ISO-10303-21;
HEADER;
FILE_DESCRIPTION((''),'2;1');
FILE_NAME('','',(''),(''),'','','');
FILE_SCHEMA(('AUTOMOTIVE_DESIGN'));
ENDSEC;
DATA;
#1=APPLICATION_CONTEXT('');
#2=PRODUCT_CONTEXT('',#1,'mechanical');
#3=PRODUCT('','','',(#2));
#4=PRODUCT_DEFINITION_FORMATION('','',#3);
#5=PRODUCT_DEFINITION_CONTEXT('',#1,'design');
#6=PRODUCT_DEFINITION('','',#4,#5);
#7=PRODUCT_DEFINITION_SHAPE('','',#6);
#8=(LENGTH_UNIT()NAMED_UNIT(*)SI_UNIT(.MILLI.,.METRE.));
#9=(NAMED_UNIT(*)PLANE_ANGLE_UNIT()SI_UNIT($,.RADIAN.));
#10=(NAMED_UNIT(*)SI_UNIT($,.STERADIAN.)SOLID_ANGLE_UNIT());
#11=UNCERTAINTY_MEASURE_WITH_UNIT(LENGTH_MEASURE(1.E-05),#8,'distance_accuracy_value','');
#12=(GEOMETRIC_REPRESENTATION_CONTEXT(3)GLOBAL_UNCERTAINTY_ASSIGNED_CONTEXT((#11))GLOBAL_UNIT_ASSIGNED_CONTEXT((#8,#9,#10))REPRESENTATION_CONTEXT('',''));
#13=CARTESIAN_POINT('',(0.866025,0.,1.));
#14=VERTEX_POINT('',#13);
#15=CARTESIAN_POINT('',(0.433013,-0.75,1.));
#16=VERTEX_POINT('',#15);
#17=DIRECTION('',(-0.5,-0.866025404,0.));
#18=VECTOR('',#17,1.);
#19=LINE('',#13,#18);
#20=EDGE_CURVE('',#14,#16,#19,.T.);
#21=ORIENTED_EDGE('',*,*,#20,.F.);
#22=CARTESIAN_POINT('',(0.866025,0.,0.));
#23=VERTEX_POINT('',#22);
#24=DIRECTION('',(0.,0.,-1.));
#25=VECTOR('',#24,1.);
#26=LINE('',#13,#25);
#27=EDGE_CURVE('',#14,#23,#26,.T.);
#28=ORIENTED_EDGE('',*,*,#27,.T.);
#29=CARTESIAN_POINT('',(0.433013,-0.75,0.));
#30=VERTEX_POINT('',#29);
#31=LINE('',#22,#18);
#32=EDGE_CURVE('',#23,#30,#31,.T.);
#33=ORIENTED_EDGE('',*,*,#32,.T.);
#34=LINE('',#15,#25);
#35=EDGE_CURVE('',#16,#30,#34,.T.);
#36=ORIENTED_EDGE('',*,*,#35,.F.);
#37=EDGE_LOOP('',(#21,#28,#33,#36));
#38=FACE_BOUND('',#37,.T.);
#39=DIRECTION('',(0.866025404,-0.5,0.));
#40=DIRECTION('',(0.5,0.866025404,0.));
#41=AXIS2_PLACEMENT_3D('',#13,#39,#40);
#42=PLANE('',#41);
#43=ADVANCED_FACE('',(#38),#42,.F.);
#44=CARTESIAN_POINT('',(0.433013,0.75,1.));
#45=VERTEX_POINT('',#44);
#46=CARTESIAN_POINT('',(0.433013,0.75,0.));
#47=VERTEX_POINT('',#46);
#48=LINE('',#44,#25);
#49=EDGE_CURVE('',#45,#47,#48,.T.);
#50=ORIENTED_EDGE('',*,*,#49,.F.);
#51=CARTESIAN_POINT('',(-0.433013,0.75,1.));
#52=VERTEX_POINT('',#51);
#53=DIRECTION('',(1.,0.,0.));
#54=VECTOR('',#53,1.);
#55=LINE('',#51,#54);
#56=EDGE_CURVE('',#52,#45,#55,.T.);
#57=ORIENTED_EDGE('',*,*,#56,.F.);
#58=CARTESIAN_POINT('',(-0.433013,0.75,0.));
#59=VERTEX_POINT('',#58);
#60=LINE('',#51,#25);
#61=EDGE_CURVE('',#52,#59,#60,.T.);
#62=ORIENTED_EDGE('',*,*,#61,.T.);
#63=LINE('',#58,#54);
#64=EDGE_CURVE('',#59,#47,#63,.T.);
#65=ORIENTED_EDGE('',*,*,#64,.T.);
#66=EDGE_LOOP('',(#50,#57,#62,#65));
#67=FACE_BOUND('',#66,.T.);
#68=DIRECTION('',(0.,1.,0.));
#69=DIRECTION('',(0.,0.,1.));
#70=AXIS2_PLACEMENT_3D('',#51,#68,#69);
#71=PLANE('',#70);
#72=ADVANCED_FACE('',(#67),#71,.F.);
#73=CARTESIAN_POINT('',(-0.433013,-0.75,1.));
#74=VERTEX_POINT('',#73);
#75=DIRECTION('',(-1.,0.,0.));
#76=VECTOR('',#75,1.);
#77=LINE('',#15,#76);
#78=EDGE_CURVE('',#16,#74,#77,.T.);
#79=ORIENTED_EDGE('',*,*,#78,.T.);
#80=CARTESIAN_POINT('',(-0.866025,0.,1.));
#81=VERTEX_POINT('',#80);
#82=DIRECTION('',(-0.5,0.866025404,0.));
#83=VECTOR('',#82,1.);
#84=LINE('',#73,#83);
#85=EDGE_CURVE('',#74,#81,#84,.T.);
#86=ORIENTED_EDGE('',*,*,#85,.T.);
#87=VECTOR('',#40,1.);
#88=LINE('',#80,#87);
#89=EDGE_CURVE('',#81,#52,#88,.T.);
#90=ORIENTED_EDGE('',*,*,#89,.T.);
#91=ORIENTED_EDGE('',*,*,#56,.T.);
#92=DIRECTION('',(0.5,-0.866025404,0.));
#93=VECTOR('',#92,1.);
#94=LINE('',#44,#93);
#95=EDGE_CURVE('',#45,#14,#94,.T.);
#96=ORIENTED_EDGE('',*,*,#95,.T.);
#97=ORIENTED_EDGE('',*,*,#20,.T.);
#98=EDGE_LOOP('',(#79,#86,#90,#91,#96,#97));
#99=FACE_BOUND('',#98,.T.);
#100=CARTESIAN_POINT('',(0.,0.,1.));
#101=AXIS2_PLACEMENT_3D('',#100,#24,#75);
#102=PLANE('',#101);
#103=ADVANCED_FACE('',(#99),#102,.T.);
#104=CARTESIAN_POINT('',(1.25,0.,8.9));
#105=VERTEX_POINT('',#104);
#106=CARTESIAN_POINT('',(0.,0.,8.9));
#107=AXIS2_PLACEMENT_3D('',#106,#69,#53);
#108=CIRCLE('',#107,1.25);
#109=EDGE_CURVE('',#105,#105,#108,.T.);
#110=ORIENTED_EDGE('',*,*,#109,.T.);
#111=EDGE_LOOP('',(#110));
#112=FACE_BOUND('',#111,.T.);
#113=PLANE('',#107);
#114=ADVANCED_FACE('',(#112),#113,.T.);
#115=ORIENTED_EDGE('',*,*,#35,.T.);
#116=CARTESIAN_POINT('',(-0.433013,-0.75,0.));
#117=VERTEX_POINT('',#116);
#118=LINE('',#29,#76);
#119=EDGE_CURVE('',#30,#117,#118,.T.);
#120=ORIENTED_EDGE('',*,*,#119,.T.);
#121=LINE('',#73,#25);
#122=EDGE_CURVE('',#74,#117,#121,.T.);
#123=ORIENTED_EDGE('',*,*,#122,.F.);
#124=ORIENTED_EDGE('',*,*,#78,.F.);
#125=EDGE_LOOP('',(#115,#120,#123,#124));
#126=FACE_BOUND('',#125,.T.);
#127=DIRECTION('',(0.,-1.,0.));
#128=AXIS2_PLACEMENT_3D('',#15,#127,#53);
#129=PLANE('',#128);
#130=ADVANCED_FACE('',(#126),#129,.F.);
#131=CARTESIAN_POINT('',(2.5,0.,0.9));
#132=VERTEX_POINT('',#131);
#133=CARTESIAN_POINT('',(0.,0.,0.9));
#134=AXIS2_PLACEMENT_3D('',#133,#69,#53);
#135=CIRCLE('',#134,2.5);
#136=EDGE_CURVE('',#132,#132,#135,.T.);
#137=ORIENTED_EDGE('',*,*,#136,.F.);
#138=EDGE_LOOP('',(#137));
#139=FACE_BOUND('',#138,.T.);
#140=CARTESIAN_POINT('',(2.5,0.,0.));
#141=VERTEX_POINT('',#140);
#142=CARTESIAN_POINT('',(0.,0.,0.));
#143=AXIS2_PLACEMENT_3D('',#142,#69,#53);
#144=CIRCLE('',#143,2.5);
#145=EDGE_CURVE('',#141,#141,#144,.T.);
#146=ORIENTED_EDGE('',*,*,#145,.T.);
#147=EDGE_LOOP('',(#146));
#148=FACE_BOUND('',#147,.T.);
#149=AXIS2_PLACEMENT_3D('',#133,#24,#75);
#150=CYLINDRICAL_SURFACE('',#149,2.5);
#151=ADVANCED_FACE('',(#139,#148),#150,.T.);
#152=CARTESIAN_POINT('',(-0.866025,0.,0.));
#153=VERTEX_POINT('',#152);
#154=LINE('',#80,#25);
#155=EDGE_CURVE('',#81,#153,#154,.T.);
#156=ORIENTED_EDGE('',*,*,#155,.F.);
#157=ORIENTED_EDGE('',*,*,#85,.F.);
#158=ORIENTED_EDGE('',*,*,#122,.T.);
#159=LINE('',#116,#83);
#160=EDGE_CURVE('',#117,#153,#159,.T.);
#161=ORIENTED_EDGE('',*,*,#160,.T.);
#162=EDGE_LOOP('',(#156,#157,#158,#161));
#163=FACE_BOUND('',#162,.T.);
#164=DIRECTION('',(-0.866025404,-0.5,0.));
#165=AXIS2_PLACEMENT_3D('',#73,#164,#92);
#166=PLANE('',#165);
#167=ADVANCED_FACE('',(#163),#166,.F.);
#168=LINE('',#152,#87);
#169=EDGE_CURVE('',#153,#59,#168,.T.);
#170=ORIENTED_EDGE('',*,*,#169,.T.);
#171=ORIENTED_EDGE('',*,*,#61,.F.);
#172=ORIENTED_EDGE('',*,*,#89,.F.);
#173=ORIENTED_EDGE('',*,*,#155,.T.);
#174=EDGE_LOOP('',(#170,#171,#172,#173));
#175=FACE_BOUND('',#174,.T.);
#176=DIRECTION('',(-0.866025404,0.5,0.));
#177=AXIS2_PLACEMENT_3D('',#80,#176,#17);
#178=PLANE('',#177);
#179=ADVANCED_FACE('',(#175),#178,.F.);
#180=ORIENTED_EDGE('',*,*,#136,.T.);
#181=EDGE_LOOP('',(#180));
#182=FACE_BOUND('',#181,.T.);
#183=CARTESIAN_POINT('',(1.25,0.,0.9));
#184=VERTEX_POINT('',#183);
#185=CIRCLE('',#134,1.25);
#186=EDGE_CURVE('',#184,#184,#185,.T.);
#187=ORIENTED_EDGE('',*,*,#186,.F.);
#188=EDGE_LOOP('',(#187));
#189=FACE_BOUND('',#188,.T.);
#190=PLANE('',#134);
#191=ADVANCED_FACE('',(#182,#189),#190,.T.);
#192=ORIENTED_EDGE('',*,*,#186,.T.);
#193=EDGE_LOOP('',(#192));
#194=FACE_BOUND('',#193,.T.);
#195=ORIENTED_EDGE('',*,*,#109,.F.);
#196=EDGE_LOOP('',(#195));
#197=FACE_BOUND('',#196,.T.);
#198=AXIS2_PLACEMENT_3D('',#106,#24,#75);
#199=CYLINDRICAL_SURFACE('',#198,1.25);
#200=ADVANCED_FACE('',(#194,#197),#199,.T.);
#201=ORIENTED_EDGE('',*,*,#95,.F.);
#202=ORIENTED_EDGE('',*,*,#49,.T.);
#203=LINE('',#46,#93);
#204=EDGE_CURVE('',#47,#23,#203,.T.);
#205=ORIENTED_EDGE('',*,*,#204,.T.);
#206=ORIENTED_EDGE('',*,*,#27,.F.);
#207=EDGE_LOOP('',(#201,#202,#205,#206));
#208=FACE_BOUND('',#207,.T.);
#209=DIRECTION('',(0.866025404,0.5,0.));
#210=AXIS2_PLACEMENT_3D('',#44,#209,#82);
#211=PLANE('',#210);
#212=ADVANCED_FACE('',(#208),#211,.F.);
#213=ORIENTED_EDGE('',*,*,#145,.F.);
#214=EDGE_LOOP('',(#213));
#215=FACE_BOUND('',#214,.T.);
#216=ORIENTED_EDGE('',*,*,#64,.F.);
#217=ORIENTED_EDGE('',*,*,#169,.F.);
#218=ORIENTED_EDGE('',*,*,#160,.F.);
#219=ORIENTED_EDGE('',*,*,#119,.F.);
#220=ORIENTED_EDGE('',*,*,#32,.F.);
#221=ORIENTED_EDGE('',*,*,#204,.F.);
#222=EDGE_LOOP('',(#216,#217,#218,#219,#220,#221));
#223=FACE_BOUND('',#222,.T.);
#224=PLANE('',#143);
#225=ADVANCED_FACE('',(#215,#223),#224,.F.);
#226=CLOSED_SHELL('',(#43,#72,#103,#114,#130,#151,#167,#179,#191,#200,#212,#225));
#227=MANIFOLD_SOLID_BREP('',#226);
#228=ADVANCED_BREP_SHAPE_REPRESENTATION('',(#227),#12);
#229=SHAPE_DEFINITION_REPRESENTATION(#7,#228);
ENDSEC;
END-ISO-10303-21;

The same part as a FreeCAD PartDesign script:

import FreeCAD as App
import Part
import Sketcher
from FreeCAD import Vector
Q = App.Units.Quantity

doc = App.newDocument("Part")
body = doc.addObject("PartDesign::Body", "Body")

sketch1 = body.newObject("Sketcher::SketchObject", "Sketch")
sketch1.AttachmentSupport = (doc.getObject("XY_Plane"), [""])
sketch1.MapMode = "FlatFace"
sketch1.addGeometry(Part.Circle(Vector(0, 0, 0), Vector(0, 0, 1), 2.5), False)
sketch1.addConstraint(Sketcher.Constraint("Coincident", 0, 3, -1, 1))
sketch1.addConstraint(Sketcher.Constraint("Diameter", 0, Q("5 mm")))
pad1 = body.newObject("PartDesign::Pad", "Pad")
pad1.Profile = sketch1
pad1.Length = 0.9

sketch2 = body.newObject("Sketcher::SketchObject", "Sketch001")
sketch2.AttachmentSupport = (doc.getObject("XY_Plane"), [""])
sketch2.MapMode = "FlatFace"
sketch2.AttachmentOffset = App.Placement(Vector(0, 0, 0.9), App.Rotation())
sketch2.addGeometry(Part.Circle(Vector(0, 0, 0), Vector(0, 0, 1), 1.2), False)
sketch2.addConstraint(Sketcher.Constraint("Coincident", 0, 3, -1, 1))
sketch2.addConstraint(Sketcher.Constraint("Diameter", 0, Q("2.5 mm")))
pad2 = body.newObject("PartDesign::Pad", "Pad001")
pad2.Profile = sketch2
pad2.Length = 8

sketch3 = body.newObject("Sketcher::SketchObject", "Sketch002")
sketch3.AttachmentSupport = (doc.getObject("XY_Plane"), [""])
sketch3.MapMode = "FlatFace"
sketch3.addGeometry(Part.LineSegment(Vector(-0.9, 0, 0), Vector(-0.4, 0.8, 0)), False)
sketch3.addGeometry(Part.LineSegment(Vector(-0.4, 0.8, 0), Vector(0.4, 0.8, 0)), False)
sketch3.addGeometry(Part.LineSegment(Vector(0.4, 0.8, 0), Vector(0.9, 0, 0)), False)
sketch3.addGeometry(Part.LineSegment(Vector(0.9, 0, 0), Vector(0.4, -0.8, 0)), False)
sketch3.addGeometry(Part.LineSegment(Vector(0.4, -0.8, 0), Vector(-0.4, -0.8, 0)), False)
sketch3.addGeometry(Part.LineSegment(Vector(-0.4, -0.8, 0), Vector(-0.9, 0, 0)), False)
sketch3.addConstraint(Sketcher.Constraint("Coincident", 0, 2, 1, 1))
sketch3.addConstraint(Sketcher.Constraint("Coincident", 1, 2, 2, 1))
sketch3.addConstraint(Sketcher.Constraint("Coincident", 2, 2, 3, 1))
sketch3.addConstraint(Sketcher.Constraint("Coincident", 3, 2, 4, 1))
sketch3.addConstraint(Sketcher.Constraint("Coincident", 4, 2, 5, 1))
sketch3.addConstraint(Sketcher.Constraint("Coincident", 5, 2, 0, 1))
sketch3.addConstraint(Sketcher.Constraint("Horizontal", 1))
sketch3.addConstraint(Sketcher.Constraint("Horizontal", 4))
sketch3.addConstraint(Sketcher.Constraint("Symmetric", 0, 2, 3, 2, -1, 1))
sketch3.addConstraint(Sketcher.Constraint("Symmetric", 2, 2, 5, 2, -1, 1))
sketch3.addConstraint(Sketcher.Constraint("PointOnObject", 2, 2, -1))
sketch3.addConstraint(Sketcher.Constraint("Parallel", 2, 5))
sketch3.addConstraint(Sketcher.Constraint("Vertical", 1, 2, 3, 2))
sketch3.addConstraint(Sketcher.Constraint("Angle", 0, Q("60 deg")))
sketch3.addConstraint(Sketcher.Constraint("DistanceY", 3, 2, 1, 2, Q("1.5 mm")))
sketch3.addConstraint(Sketcher.Constraint("DistanceX", 1, 1, 1, 2, Q("0.866025 mm")))
pocket1 = body.newObject("PartDesign::Pocket", "Pocket")
pocket1.Profile = sketch3
pocket1.Length = 1
pocket1.Reversed = True

doc.recompute()
